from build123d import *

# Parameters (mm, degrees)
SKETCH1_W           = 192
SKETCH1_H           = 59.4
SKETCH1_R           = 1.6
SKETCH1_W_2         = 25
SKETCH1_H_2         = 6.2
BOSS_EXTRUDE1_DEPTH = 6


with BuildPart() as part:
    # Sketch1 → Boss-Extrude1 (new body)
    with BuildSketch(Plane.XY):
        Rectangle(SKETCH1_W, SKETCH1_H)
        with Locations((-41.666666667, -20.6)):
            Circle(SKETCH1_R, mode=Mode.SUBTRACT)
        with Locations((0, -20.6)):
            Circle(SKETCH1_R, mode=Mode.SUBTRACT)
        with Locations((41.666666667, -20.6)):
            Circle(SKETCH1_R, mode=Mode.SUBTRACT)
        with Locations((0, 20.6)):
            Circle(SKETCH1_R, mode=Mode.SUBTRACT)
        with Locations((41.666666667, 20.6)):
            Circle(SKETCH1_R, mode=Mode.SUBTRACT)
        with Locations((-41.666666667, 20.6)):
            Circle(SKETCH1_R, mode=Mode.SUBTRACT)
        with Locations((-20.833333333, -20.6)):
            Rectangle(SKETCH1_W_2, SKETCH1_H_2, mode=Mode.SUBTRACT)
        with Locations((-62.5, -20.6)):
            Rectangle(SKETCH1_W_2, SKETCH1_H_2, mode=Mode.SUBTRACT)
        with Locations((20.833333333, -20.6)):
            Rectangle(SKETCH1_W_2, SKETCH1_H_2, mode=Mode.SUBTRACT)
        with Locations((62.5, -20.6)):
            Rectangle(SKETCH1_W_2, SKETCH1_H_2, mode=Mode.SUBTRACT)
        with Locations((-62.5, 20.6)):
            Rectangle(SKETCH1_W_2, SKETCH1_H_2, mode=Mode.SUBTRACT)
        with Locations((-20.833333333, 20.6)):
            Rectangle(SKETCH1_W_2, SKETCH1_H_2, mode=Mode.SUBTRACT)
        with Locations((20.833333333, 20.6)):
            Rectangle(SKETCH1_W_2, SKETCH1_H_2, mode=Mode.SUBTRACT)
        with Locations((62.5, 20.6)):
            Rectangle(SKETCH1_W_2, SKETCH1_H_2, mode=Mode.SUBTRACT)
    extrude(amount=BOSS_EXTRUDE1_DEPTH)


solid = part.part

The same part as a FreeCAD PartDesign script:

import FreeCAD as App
import Part
import Sketcher
from FreeCAD import Vector
Q = App.Units.Quantity

doc = App.newDocument("Part")
body = doc.addObject("PartDesign::Body", "Body")

# Sketch on XY plane
sketch1 = body.newObject("Sketcher::SketchObject", "Sketch")
sketch1.AttachmentSupport = (doc.getObject("XY_Plane"), [""])
sketch1.MapMode = "FlatFace"
sketch1.addGeometry(Part.LineSegment(Vector(-96, 29.7, 0), Vector(-96, -29.7, 0)), False)
sketch1.addGeometry(Part.LineSegment(Vector(-96, -29.7, 0), Vector(96, -29.7, 0)), False)
sketch1.addGeometry(Part.LineSegment(Vector(96, -29.7, 0), Vector(96, 29.7, 0)), False)
sketch1.addGeometry(Part.LineSegment(Vector(96, 29.7, 0), Vector(-96, 29.7, 0)), False)
sketch1.addGeometry(Part.LineSegment(Vector(-50, -23.7, 0), Vector(-75, -23.7, 0)), False)
sketch1.addGeometry(Part.LineSegment(Vector(-75, -23.7, 0), Vector(-75, -17.5, 0)), False)
sketch1.addGeometry(Part.LineSegment(Vector(-75, -17.5, 0), Vector(-50, -17.5, 0)), False)
sketch1.addGeometry(Part.LineSegment(Vector(-50, -17.5, 0), Vector(-50, -23.7, 0)), False)
sketch1.addGeometry(Part.Circle(Vector(-41.7, -20.6, 0), Vector(0, 0, 1), 1.6), False)
sketch1.addGeometry(Part.LineSegment(Vector(-8.3, -23.7, 0), Vector(-33.3, -23.7, 0)), False)
sketch1.addGeometry(Part.LineSegment(Vector(-33.3, -23.7, 0), Vector(-33.3, -17.5, 0)), False)
sketch1.addGeometry(Part.LineSegment(Vector(-33.3, -17.5, 0), Vector(-8.3, -17.5, 0)), False)
sketch1.addGeometry(Part.LineSegment(Vector(-8.3, -17.5, 0), Vector(-8.3, -23.7, 0)), False)
sketch1.addGeometry(Part.Circle(Vector(0, -20.6, 0), Vector(0, 0, 1), 1.6), False)
sketch1.addGeometry(Part.LineSegment(Vector(33.3, -23.7, 0), Vector(8.3, -23.7, 0)), False)
sketch1.addGeometry(Part.LineSegment(Vector(8.3, -23.7, 0), Vector(8.3, -17.5, 0)), False)
sketch1.addGeometry(Part.LineSegment(Vector(8.3, -17.5, 0), Vector(33.3, -17.5, 0)), False)
sketch1.addGeometry(Part.LineSegment(Vector(33.3, -17.5, 0), Vector(33.3, -23.7, 0)), False)
sketch1.addGeometry(Part.Circle(Vector(41.7, -20.6, 0), Vector(0, 0, 1), 1.6), False)
sketch1.addGeometry(Part.LineSegment(Vector(75, -23.7, 0), Vector(50, -23.7, 0)), False)
sketch1.addGeometry(Part.LineSegment(Vector(50, -23.7, 0), Vector(50, -17.5, 0)), False)
sketch1.addGeometry(Part.LineSegment(Vector(50, -17.5, 0), Vector(75, -17.5, 0)), False)
sketch1.addGeometry(Part.LineSegment(Vector(75, -17.5, 0), Vector(75, -23.7, 0)), False)
sketch1.addGeometry(Part.LineSegment(Vector(-50, 17.5, 0), Vector(-75, 17.5, 0)), False)
sketch1.addGeometry(Part.LineSegment(Vector(-75, 17.5, 0), Vector(-75, 23.7, 0)), False)
sketch1.addGeometry(Part.LineSegment(Vector(-75, 23.7, 0), Vector(-50, 23.7, 0)), False)
sketch1.addGeometry(Part.LineSegment(Vector(-50, 23.7, 0), Vector(-50, 17.5, 0)), False)
sketch1.addGeometry(Part.Circle(Vector(-41.7, 20.6, 0), Vector(0, 0, 1), 1.6), False)
sketch1.addGeometry(Part.LineSegment(Vector(-8.3, 17.5, 0), Vector(-33.3, 17.5, 0)), False)
sketch1.addGeometry(Part.LineSegment(Vector(-33.3, 17.5, 0), Vector(-33.3, 23.7, 0)), False)
sketch1.addGeometry(Part.LineSegment(Vector(-33.3, 23.7, 0), Vector(-8.3, 23.7, 0)), False)
sketch1.addGeometry(Part.LineSegment(Vector(-8.3, 23.7, 0), Vector(-8.3, 17.5, 0)), False)
sketch1.addGeometry(Part.Circle(Vector(0, 20.6, 0), Vector(0, 0, 1), 1.6), False)
sketch1.addGeometry(Part.LineSegment(Vector(33.3, 17.5, 0), Vector(8.3, 17.5, 0)), False)
sketch1.addGeometry(Part.LineSegment(Vector(8.3, 17.5, 0), Vector(8.3, 23.7, 0)), False)
sketch1.addGeometry(Part.LineSegment(Vector(8.3, 23.7, 0), Vector(33.3, 23.7, 0)), False)
sketch1.addGeometry(Part.LineSegment(Vector(33.3, 23.7, 0), Vector(33.3, 17.5, 0)), False)
sketch1.addGeometry(Part.Circle(Vector(41.7, 20.6, 0), Vector(0, 0, 1), 1.6), False)
sketch1.addGeometry(Part.LineSegment(Vector(75, 17.5, 0), Vector(50, 17.5, 0)), False)
sketch1.addGeometry(Part.LineSegment(Vector(50, 17.5, 0), Vector(50, 23.7, 0)), False)
sketch1.addGeometry(Part.LineSegment(Vector(50, 23.7, 0), Vector(75, 23.7, 0)), False)
sketch1.addGeometry(Part.LineSegment(Vector(75, 23.7, 0), Vector(75, 17.5, 0)), False)
sketch1.addConstraint(Sketcher.Constraint("Coincident", 0, 2, 1, 1))
sketch1.addConstraint(Sketcher.Constraint("Coincident", 1, 2, 2, 1))
sketch1.addConstraint(Sketcher.Constraint("Coincident", 2, 2, 3, 1))
sketch1.addConstraint(Sketcher.Constraint("Coincident", 3, 2, 0, 1))
sketch1.addConstraint(Sketcher.Constraint("Coincident", 4, 2, 5, 1))
sketch1.addConstraint(Sketcher.Constraint("Coincident", 5, 2, 6, 1))
sketch1.addConstraint(Sketcher.Constraint("Coincident", 6, 2, 7, 1))
sketch1.addConstraint(Sketcher.Constraint("Coincident", 7, 2, 4, 1))
sketch1.addConstraint(Sketcher.Constraint("Coincident", 9, 2, 10, 1))
sketch1.addConstraint(Sketcher.Constraint("Coincident", 10, 2, 11, 1))
sketch1.addConstraint(Sketcher.Constraint("Coincident", 11, 2, 12, 1))
sketch1.addConstraint(Sketcher.Constraint("Coincident", 12, 2, 9, 1))
sketch1.addConstraint(Sketcher.Constraint("Coincident", 14, 2, 15, 1))
sketch1.addConstraint(Sketcher.Constraint("Coincident", 15, 2, 16, 1))
sketch1.addConstraint(Sketcher.Constraint("Coincident", 16, 2, 17, 1))
sketch1.addConstraint(Sketcher.Constraint("Coincident", 17, 2, 14, 1))
sketch1.addConstraint(Sketcher.Constraint("Coincident", 19, 2, 20, 1))
sketch1.addConstraint(Sketcher.Constraint("Coincident", 20, 2, 21, 1))
sketch1.addConstraint(Sketcher.Constraint("Coincident", 21, 2, 22, 1))
sketch1.addConstraint(Sketcher.Constraint("Coincident", 22, 2, 19, 1))
sketch1.addConstraint(Sketcher.Constraint("Coincident", 23, 2, 24, 1))
sketch1.addConstraint(Sketcher.Constraint("Coincident", 24, 2, 25, 1))
sketch1.addConstraint(Sketcher.Constraint("Coincident", 25, 2, 26, 1))
sketch1.addConstraint(Sketcher.Constraint("Coincident", 26, 2, 23, 1))
sketch1.addConstraint(Sketcher.Constraint("Coincident", 28, 2, 29, 1))
sketch1.addConstraint(Sketcher.Constraint("Coincident", 29, 2, 30, 1))
sketch1.addConstraint(Sketcher.Constraint("Coincident", 30, 2, 31, 1))
sketch1.addConstraint(Sketcher.Constraint("Coincident", 31, 2, 28, 1))
sketch1.addConstraint(Sketcher.Constraint("Coincident", 33, 2, 34, 1))
sketch1.addConstraint(Sketcher.Constraint("Coincident", 34, 2, 35, 1))
sketch1.addConstraint(Sketcher.Constraint("Coincident", 35, 2, 36, 1))
sketch1.addConstraint(Sketcher.Constraint("Coincident", 36, 2, 33, 1))
sketch1.addConstraint(Sketcher.Constraint("Coincident", 38, 2, 39, 1))
sketch1.addConstraint(Sketcher.Constraint("Coincident", 39, 2, 40, 1))
sketch1.addConstraint(Sketcher.Constraint("Coincident", 40, 2, 41, 1))
sketch1.addConstraint(Sketcher.Constraint("Coincident", 41, 2, 38, 1))
sketch1.addConstraint(Sketcher.Constraint("Vertical", 0))
sketch1.addConstraint(Sketcher.Constraint("Horizontal", 1))
sketch1.addConstraint(Sketcher.Constraint("Vertical", 2))
sketch1.addConstraint(Sketcher.Constraint("Horizontal", 3))
sketch1.addConstraint(Sketcher.Constraint("Horizontal", 4))
sketch1.addConstraint(Sketcher.Constraint("Vertical", 5))
sketch1.addConstraint(Sketcher.Constraint("Horizontal", 6))
sketch1.addConstraint(Sketcher.Constraint("Vertical", 7))
sketch1.addConstraint(Sketcher.Constraint("Horizontal", 9))
sketch1.addConstraint(Sketcher.Constraint("Vertical", 10))
sketch1.addConstraint(Sketcher.Constraint("Horizontal", 11))
sketch1.addConstraint(Sketcher.Constraint("Vertical", 12))
sketch1.addConstraint(Sketcher.Constraint("Horizontal", 14))
sketch1.addConstraint(Sketcher.Constraint("Vertical", 15))
sketch1.addConstraint(Sketcher.Constraint("Horizontal", 16))
sketch1.addConstraint(Sketcher.Constraint("Vertical", 17))
sketch1.addConstraint(Sketcher.Constraint("Horizontal", 19))
sketch1.addConstraint(Sketcher.Constraint("Vertical", 20))
sketch1.addConstraint(Sketcher.Constraint("Horizontal", 21))
sketch1.addConstraint(Sketcher.Constraint("Vertical", 22))
sketch1.addConstraint(Sketcher.Constraint("Horizontal", 23))
sketch1.addConstraint(Sketcher.Constraint("Vertical", 24))
sketch1.addConstraint(Sketcher.Constraint("Horizontal", 25))
sketch1.addConstraint(Sketcher.Constraint("Vertical", 26))
sketch1.addConstraint(Sketcher.Constraint("Horizontal", 28))
sketch1.addConstraint(Sketcher.Constraint("Vertical", 29))
sketch1.addConstraint(Sketcher.Constraint("Horizontal", 30))
sketch1.addConstraint(Sketcher.Constraint("Vertical", 31))
sketch1.addConstraint(Sketcher.Constraint("Horizontal", 33))
sketch1.addConstraint(Sketcher.Constraint("Vertical", 34))
sketch1.addConstraint(Sketcher.Constraint("Horizontal", 35))
sketch1.addConstraint(Sketcher.Constraint("Vertical", 36))
sketch1.addConstraint(Sketcher.Constraint("Horizontal", 38))
sketch1.addConstraint(Sketcher.Constraint("Vertical", 39))
sketch1.addConstraint(Sketcher.Constraint("Horizontal", 40))
sketch1.addConstraint(Sketcher.Constraint("Vertical", 41))
sketch1.addConstraint(Sketcher.Constraint("Equal", 8, 13))
sketch1.addConstraint(Sketcher.Constraint("Equal", 13, 18))
sketch1.addConstraint(Sketcher.Constraint("Equal", 18, 27))
sketch1.addConstraint(Sketcher.Constraint("Equal", 27, 32))
sketch1.addConstraint(Sketcher.Constraint("Equal", 32, 37))
sketch1.addConstraint(Sketcher.Constraint("Symmetric", 18, 3, 27, 3, -1, 1))
sketch1.addConstraint(Sketcher.Constraint("Symmetric", 13, 3, 32, 3, -1, 1))
sketch1.addConstraint(Sketcher.Constraint("Symmetric", 8, 3, 37, 3, -1, 1))
sketch1.addConstraint(Sketcher.Constraint("Symmetric", 0, 2, 2, 2, -1, 1))
sketch1.addConstraint(Sketcher.Constraint("Symmetric", 21, 2, 23, 2, -1, 1))
sketch1.addConstraint(Sketcher.Constraint("Symmetric", 19, 2, 25, 2, -1, 1))
sketch1.addConstraint(Sketcher.Constraint("Symmetric", 16, 2, 28, 2, -1, 1))
sketch1.addConstraint(Sketcher.Constraint("Symmetric", 14, 2, 30, 2, -1, 1))
sketch1.addConstraint(Sketcher.Constraint("Symmetric", 11, 2, 33, 2, -1, 1))
sketch1.addConstraint(Sketcher.Constraint("Symmetric", 9, 2, 35, 2, -1, 1))
sketch1.addConstraint(Sketcher.Constraint("Symmetric", 6, 2, 38, 2, -1, 1))
sketch1.addConstraint(Sketcher.Constraint("Symmetric", 4, 2, 40, 2, -1, 1))
sketch1.addConstraint(Sketcher.Constraint("Symmetric", 8, 3, 18, 3, -2))
sketch1.addConstraint(Sketcher.Constraint("Symmetric", 12, 2, 14, 2, -2))
sketch1.addConstraint(Sketcher.Constraint("Symmetric", 10, 2, 16, 2, -2))
sketch1.addConstraint(Sketcher.Constraint("Symmetric", 7, 2, 19, 2, -2))
sketch1.addConstraint(Sketcher.Constraint("Symmetric", 5, 2, 21, 2, -2))
sketch1.addConstraint(Sketcher.Constraint("PointOnObject", 13, 3, -2))
sketch1.addConstraint(Sketcher.Constraint("Horizontal", 8, 3, 13, 3))
sketch1.addConstraint(Sketcher.Constraint("Horizontal", 7, 2, 9, 2))
sketch1.addConstraint(Sketcher.Constraint("Horizontal", 6, 2, 10, 2))
sketch1.addConstraint(Sketcher.Constraint("Equal", 6, 9))
sketch1.addConstraint(Sketcher.Constraint("Diameter", 8, Q("3.2 mm")))
sketch1.addConstraint(Sketcher.Constraint("DistanceX", 1, 1, 1, 2, Q("192 mm")))
sketch1.addConstraint(Sketcher.Constraint("DistanceX", 4, 2, 4, 1, Q("25 mm")))
sketch1.addConstraint(Sketcher.Constraint("DistanceY", 0, 2, 0, 1, Q("59.4 mm")))
sketch1.addConstraint(Sketcher.Constraint("DistanceY", 5, 1, 5, 2, Q("6.2 mm")))
sketch1.addConstraint(Sketcher.Constraint("DistanceX", 4, 2, -1, 1, Q("75 mm")))
sketch1.addConstraint(Sketcher.Constraint("DistanceY", 0, 2, 4, 2, Q("6 mm")))
sketch1.addConstraint(Sketcher.Constraint("DistanceY", 8, 3, -1, 1, Q("20.6 mm")))
sketch1.addConstraint(Sketcher.Constraint("DistanceX", 8, 3, -1, 1, Q("41.666667 mm")))
sketch1.addConstraint(Sketcher.Constraint("DistanceX", 9, 2, -1, 1, Q("33.333333 mm")))
pad1 = body.newObject("PartDesign::Pad", "Pad")
pad1.Profile = sketch1
pad1.Length = 6

doc.recompute()
